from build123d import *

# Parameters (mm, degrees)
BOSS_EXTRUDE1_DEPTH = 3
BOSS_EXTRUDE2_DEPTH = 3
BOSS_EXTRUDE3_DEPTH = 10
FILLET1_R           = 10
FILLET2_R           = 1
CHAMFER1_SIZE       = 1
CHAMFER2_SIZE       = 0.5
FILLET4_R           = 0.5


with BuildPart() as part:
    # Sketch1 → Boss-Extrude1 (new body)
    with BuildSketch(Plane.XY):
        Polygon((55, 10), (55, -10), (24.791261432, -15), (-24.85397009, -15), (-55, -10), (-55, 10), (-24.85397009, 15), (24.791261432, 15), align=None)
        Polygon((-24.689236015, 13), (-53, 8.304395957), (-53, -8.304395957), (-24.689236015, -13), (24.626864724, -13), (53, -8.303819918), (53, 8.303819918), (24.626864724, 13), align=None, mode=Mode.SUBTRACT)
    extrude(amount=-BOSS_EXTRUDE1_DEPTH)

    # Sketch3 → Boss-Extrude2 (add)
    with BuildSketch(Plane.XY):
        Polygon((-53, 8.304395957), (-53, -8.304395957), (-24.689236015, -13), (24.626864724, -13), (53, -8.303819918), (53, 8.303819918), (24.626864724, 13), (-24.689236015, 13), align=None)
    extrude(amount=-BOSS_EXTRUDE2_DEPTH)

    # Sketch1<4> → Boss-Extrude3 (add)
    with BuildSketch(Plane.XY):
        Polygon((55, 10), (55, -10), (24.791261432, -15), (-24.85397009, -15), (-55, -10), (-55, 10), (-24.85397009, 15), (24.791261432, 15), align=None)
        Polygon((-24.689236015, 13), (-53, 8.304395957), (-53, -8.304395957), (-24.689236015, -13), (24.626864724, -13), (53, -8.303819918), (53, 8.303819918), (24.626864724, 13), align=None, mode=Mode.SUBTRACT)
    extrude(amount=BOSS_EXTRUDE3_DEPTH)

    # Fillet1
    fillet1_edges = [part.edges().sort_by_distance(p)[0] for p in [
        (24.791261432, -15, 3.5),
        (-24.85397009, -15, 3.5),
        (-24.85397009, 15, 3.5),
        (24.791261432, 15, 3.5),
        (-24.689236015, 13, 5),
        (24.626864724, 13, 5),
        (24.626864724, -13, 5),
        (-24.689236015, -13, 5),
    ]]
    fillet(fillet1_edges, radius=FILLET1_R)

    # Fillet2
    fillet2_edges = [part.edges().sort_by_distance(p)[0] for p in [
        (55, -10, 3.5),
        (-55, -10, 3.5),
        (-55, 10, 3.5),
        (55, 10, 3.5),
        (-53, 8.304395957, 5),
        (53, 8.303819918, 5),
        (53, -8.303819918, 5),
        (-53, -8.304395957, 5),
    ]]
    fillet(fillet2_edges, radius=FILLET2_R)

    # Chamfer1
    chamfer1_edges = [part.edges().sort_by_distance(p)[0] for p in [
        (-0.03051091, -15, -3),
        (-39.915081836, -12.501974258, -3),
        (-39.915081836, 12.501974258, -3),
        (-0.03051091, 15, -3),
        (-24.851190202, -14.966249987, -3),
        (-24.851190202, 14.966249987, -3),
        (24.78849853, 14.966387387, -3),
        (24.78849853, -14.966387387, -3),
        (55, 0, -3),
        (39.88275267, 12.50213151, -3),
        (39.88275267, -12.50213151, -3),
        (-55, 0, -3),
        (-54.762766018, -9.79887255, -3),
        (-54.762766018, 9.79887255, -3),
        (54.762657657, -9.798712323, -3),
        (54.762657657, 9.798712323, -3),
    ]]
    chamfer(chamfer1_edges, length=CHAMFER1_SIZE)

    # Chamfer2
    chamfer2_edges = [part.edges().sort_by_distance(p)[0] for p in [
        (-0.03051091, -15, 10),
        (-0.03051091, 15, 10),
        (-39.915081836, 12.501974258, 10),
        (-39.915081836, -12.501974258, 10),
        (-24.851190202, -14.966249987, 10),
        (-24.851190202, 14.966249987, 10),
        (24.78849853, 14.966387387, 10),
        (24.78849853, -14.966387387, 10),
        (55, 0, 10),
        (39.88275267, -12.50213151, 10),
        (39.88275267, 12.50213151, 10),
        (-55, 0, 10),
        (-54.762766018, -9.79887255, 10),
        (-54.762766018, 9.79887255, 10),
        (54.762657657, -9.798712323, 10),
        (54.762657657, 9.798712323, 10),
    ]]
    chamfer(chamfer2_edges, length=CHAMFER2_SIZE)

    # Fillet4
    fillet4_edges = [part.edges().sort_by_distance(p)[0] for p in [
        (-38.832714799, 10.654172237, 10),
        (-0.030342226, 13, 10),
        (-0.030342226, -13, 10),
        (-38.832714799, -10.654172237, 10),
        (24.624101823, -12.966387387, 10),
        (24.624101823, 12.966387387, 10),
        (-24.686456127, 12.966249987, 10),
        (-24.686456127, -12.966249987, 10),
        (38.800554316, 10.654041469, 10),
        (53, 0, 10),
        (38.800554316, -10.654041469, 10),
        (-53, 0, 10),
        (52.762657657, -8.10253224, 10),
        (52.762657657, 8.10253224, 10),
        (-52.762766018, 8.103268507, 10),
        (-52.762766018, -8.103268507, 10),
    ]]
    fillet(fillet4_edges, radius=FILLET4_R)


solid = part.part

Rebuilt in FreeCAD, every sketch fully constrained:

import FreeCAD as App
import Part
import Sketcher

V = App.Vector
Q = App.Units.Quantity


def edges_at(feature, points):
    """Names of the edges that pass closest to the given points."""
    edges = feature.Shape.Edges
    near = lambda p: min(range(len(edges)), key=lambda i: edges[i].distToShape(Part.Vertex(*p))[0])
    return sorted({f"Edge{near(p) + 1}" for p in points})

doc = App.newDocument("Part")
body = doc.addObject("PartDesign::Body", "Body")

sketch1 = body.newObject("Sketcher::SketchObject", "Sketch")
sketch1.AttachmentSupport = (doc.getObject("XY_Plane"), [""])
sketch1.MapMode = "FlatFace"
sketch1.addGeometry(Part.LineSegment(V(55, -10, 0), V(55, 10, 0)), False)
sketch1.addGeometry(Part.LineSegment(V(55, 10, 0), V(24.791261, 15, 0)), False)
sketch1.addGeometry(Part.LineSegment(V(24.791261, 15, 0), V(-24.85397, 15, 0)), False)
sketch1.addGeometry(Part.LineSegment(V(-24.85397, 15, 0), V(-55, 10, 0)), False)
sketch1.addGeometry(Part.LineSegment(V(-55, 10, 0), V(-55, -10, 0)), False)
sketch1.addGeometry(Part.LineSegment(V(-55, -10, 0), V(-24.85397, -15, 0)), False)
sketch1.addGeometry(Part.LineSegment(V(-24.85397, -15, 0), V(24.791261, -15, 0)), False)
sketch1.addGeometry(Part.LineSegment(V(24.791261, -15, 0), V(55, -10, 0)), False)
sketch1.addGeometry(Part.LineSegment(V(-24.689236, 13, 0), V(24.626865, 13, 0)), False)
sketch1.addGeometry(Part.LineSegment(V(24.626865, 13, 0), V(53, 8.30382, 0)), False)
sketch1.addGeometry(Part.LineSegment(V(53, 8.30382, 0), V(53, -8.30382, 0)), False)
sketch1.addGeometry(Part.LineSegment(V(53, -8.30382, 0), V(24.626865, -13, 0)), False)
sketch1.addGeometry(Part.LineSegment(V(24.626865, -13, 0), V(-24.689236, -13, 0)), False)
sketch1.addGeometry(Part.LineSegment(V(-24.689236, -13, 0), V(-53, -8.304396, 0)), False)
sketch1.addGeometry(Part.LineSegment(V(-53, -8.304396, 0), V(-53, 8.304396, 0)), False)
sketch1.addGeometry(Part.LineSegment(V(-53, 8.304396, 0), V(-24.689236, 13, 0)), False)
sketch1.addConstraint(Sketcher.Constraint("Coincident", 0, 2, 1, 1))
sketch1.addConstraint(Sketcher.Constraint("Coincident", 1, 2, 2, 1))
sketch1.addConstraint(Sketcher.Constraint("Coincident", 2, 2, 3, 1))
sketch1.addConstraint(Sketcher.Constraint("Coincident", 3, 2, 4, 1))
sketch1.addConstraint(Sketcher.Constraint("Coincident", 4, 2, 5, 1))
sketch1.addConstraint(Sketcher.Constraint("Coincident", 5, 2, 6, 1))
sketch1.addConstraint(Sketcher.Constraint("Coincident", 6, 2, 7, 1))
sketch1.addConstraint(Sketcher.Constraint("Coincident", 7, 2, 0, 1))
sketch1.addConstraint(Sketcher.Constraint("Coincident", 8, 2, 9, 1))
sketch1.addConstraint(Sketcher.Constraint("Coincident", 9, 2, 10, 1))
sketch1.addConstraint(Sketcher.Constraint("Coincident", 10, 2, 11, 1))
sketch1.addConstraint(Sketcher.Constraint("Coincident", 11, 2, 12, 1))
sketch1.addConstraint(Sketcher.Constraint("Coincident", 12, 2, 13, 1))
sketch1.addConstraint(Sketcher.Constraint("Coincident", 13, 2, 14, 1))
sketch1.addConstraint(Sketcher.Constraint("Coincident", 14, 2, 15, 1))
sketch1.addConstraint(Sketcher.Constraint("Coincident", 15, 2, 8, 1))
sketch1.addConstraint(Sketcher.Constraint("Vertical", 0))
sketch1.addConstraint(Sketcher.Constraint("Horizontal", 2))
sketch1.addConstraint(Sketcher.Constraint("Vertical", 4))
sketch1.addConstraint(Sketcher.Constraint("Horizontal", 6))
sketch1.addConstraint(Sketcher.Constraint("Horizontal", 8))
sketch1.addConstraint(Sketcher.Constraint("Vertical", 10))
sketch1.addConstraint(Sketcher.Constraint("Horizontal", 12))
sketch1.addConstraint(Sketcher.Constraint("Vertical", 14))
sketch1.addConstraint(Sketcher.Constraint("Symmetric", 0, 2, 4, 2, -1, 1))
sketch1.addConstraint(Sketcher.Constraint("Symmetric", 2, 2, 5, 2, -1))
sketch1.addConstraint(Sketcher.Constraint("Symmetric", 8, 2, 11, 2, -1))
sketch1.addConstraint(Sketcher.Constraint("Parallel", 1, 9))
sketch1.addConstraint(Sketcher.Constraint("Parallel", 7, 11))
sketch1.addConstraint(Sketcher.Constraint("Parallel", 5, 13))
sketch1.addConstraint(Sketcher.Constraint("Parallel", 3, 15))
sketch1.addConstraint(Sketcher.Constraint("Horizontal", 0, 2, 3, 2))
sketch1.addConstraint(Sketcher.Constraint("Horizontal", 4, 2, 7, 2))
sketch1.addConstraint(Sketcher.Constraint("Vertical", 1, 2, 6, 2))
sketch1.addConstraint(Sketcher.Constraint("Vertical", 12, 2, 15, 2))
sketch1.addConstraint(Sketcher.Constraint("DistanceY", 0, 1, 0, 2, Q("20 mm")))
sketch1.addConstraint(Sketcher.Constraint("DistanceX", -1, 1, 0, 2, Q("55 mm")))
sketch1.addConstraint(Sketcher.Constraint("DistanceY", -1, 1, 1, 2, Q("15 mm")))
sketch1.addConstraint(Sketcher.Constraint("DistanceY", -1, 1, 8, 2, Q("13 mm")))
sketch1.addConstraint(Sketcher.Constraint("DistanceX", -1, 1, 9, 2, Q("53 mm")))
sketch1.addConstraint(Sketcher.Constraint("DistanceX", 13, 2, -1, 1, Q("53 mm")))
sketch1.addConstraint(Sketcher.Constraint("DistanceX", 8, 1, 8, 2, Q("49.316101 mm")))
sketch1.addConstraint(Sketcher.Constraint("DistanceX", 2, 2, 2, 1, Q("49.645232 mm")))
sketch1.addConstraint(Sketcher.Constraint("DistanceY", 10, 2, 10, 1, Q("16.60764 mm")))
sketch1.addConstraint(Sketcher.Constraint("Distance", 1, Q("30.61973 mm")))
pad1 = body.newObject("PartDesign::Pad", "Pad")
pad1.Profile = sketch1
pad1.Length = 3
pad1.Reversed = True

sketch2 = body.newObject("Sketcher::SketchObject", "Sketch001")
sketch2.AttachmentSupport = (doc.getObject("XY_Plane"), [""])
sketch2.MapMode = "FlatFace"
sketch2.addGeometry(Part.LineSegment(V(-53, 8.304396, 0), V(-53, -8.304396, 0)), False)
sketch2.addGeometry(Part.LineSegment(V(-53, -8.304396, 0), V(-24.689236, -13, 0)), False)
sketch2.addGeometry(Part.LineSegment(V(-24.689236, -13, 0), V(24.626865, -13, 0)), False)
sketch2.addGeometry(Part.LineSegment(V(24.626865, -13, 0), V(53, -8.30382, 0)), False)
sketch2.addGeometry(Part.LineSegment(V(53, -8.30382, 0), V(53, 8.30382, 0)), False)
sketch2.addGeometry(Part.LineSegment(V(53, 8.30382, 0), V(24.626865, 13, 0)), False)
sketch2.addGeometry(Part.LineSegment(V(24.626865, 13, 0), V(-24.689236, 13, 0)), False)
sketch2.addGeometry(Part.LineSegment(V(-24.689236, 13, 0), V(-53, 8.304396, 0)), False)
sketch2.addConstraint(Sketcher.Constraint("Coincident", 0, 2, 1, 1))
sketch2.addConstraint(Sketcher.Constraint("Coincident", 1, 2, 2, 1))
sketch2.addConstraint(Sketcher.Constraint("Coincident", 2, 2, 3, 1))
sketch2.addConstraint(Sketcher.Constraint("Coincident", 3, 2, 4, 1))
sketch2.addConstraint(Sketcher.Constraint("Coincident", 4, 2, 5, 1))
sketch2.addConstraint(Sketcher.Constraint("Coincident", 5, 2, 6, 1))
sketch2.addConstraint(Sketcher.Constraint("Coincident", 6, 2, 7, 1))
sketch2.addConstraint(Sketcher.Constraint("Coincident", 7, 2, 0, 1))
sketch2.addConstraint(Sketcher.Constraint("Vertical", 0))
sketch2.addConstraint(Sketcher.Constraint("Horizontal", 2))
sketch2.addConstraint(Sketcher.Constraint("Vertical", 4))
sketch2.addConstraint(Sketcher.Constraint("Horizontal", 6))
sketch2.addConstraint(Sketcher.Constraint("Symmetric", 2, 2, 5, 2, -1))
sketch2.addConstraint(Sketcher.Constraint("Vertical", 1, 2, 6, 2))
sketch2.addConstraint(Sketcher.Constraint("Equal", 3, 5))
sketch2.addConstraint(Sketcher.Constraint("Equal", 1, 7))
sketch2.addConstraint(Sketcher.Constraint("DistanceX", 0, 2, -1, 1, Q("53 mm")))
sketch2.addConstraint(Sketcher.Constraint("DistanceY", 1, 2, -1, 1, Q("13 mm")))
sketch2.addConstraint(Sketcher.Constraint("DistanceX", -1, 1, 3, 2, Q("53 mm")))
sketch2.addConstraint(Sketcher.Constraint("DistanceX", 2, 1, 2, 2, Q("49.316101 mm")))
sketch2.addConstraint(Sketcher.Constraint("DistanceY", 0, 2, 0, 1, Q("16.608792 mm")))
sketch2.addConstraint(Sketcher.Constraint("DistanceY", 4, 1, 4, 2, Q("16.60764 mm")))
sketch2.addConstraint(Sketcher.Constraint("Distance", 1, Q("28.697527 mm")))
pad2 = body.newObject("PartDesign::Pad", "Pad001")
pad2.Profile = sketch2
pad2.Length = 3
pad2.Reversed = True

sketch3 = body.newObject("Sketcher::SketchObject", "Sketch002")
sketch3.AttachmentSupport = (doc.getObject("XY_Plane"), [""])
sketch3.MapMode = "FlatFace"
sketch3.addGeometry(Part.LineSegment(V(55, -10, 0), V(55, 10, 0)), False)
sketch3.addGeometry(Part.LineSegment(V(55, 10, 0), V(24.791261, 15, 0)), False)
sketch3.addGeometry(Part.LineSegment(V(24.791261, 15, 0), V(-24.85397, 15, 0)), False)
sketch3.addGeometry(Part.LineSegment(V(-24.85397, 15, 0), V(-55, 10, 0)), False)
sketch3.addGeometry(Part.LineSegment(V(-55, 10, 0), V(-55, -10, 0)), False)
sketch3.addGeometry(Part.LineSegment(V(-55, -10, 0), V(-24.85397, -15, 0)), False)
sketch3.addGeometry(Part.LineSegment(V(-24.85397, -15, 0), V(24.791261, -15, 0)), False)
sketch3.addGeometry(Part.LineSegment(V(24.791261, -15, 0), V(55, -10, 0)), False)
sketch3.addGeometry(Part.LineSegment(V(-24.689236, 13, 0), V(24.626865, 13, 0)), False)
sketch3.addGeometry(Part.LineSegment(V(24.626865, 13, 0), V(53, 8.30382, 0)), False)
sketch3.addGeometry(Part.LineSegment(V(53, 8.30382, 0), V(53, -8.30382, 0)), False)
sketch3.addGeometry(Part.LineSegment(V(53, -8.30382, 0), V(24.626865, -13, 0)), False)
sketch3.addGeometry(Part.LineSegment(V(24.626865, -13, 0), V(-24.689236, -13, 0)), False)
sketch3.addGeometry(Part.LineSegment(V(-24.689236, -13, 0), V(-53, -8.304396, 0)), False)
sketch3.addGeometry(Part.LineSegment(V(-53, -8.304396, 0), V(-53, 8.304396, 0)), False)
sketch3.addGeometry(Part.LineSegment(V(-53, 8.304396, 0), V(-24.689236, 13, 0)), False)
sketch3.addConstraint(Sketcher.Constraint("Coincident", 0, 2, 1, 1))
sketch3.addConstraint(Sketcher.Constraint("Coincident", 1, 2, 2, 1))
sketch3.addConstraint(Sketcher.Constraint("Coincident", 2, 2, 3, 1))
sketch3.addConstraint(Sketcher.Constraint("Coincident", 3, 2, 4, 1))
sketch3.addConstraint(Sketcher.Constraint("Coincident", 4, 2, 5, 1))
sketch3.addConstraint(Sketcher.Constraint("Coincident", 5, 2, 6, 1))
sketch3.addConstraint(Sketcher.Constraint("Coincident", 6, 2, 7, 1))
sketch3.addConstraint(Sketcher.Constraint("Coincident", 7, 2, 0, 1))
sketch3.addConstraint(Sketcher.Constraint("Coincident", 8, 2, 9, 1))
sketch3.addConstraint(Sketcher.Constraint("Coincident", 9, 2, 10, 1))
sketch3.addConstraint(Sketcher.Constraint("Coincident", 10, 2, 11, 1))
sketch3.addConstraint(Sketcher.Constraint("Coincident", 11, 2, 12, 1))
sketch3.addConstraint(Sketcher.Constraint("Coincident", 12, 2, 13, 1))
sketch3.addConstraint(Sketcher.Constraint("Coincident", 13, 2, 14, 1))
sketch3.addConstraint(Sketcher.Constraint("Coincident", 14, 2, 15, 1))
sketch3.addConstraint(Sketcher.Constraint("Coincident", 15, 2, 8, 1))
sketch3.addConstraint(Sketcher.Constraint("Vertical", 0))
sketch3.addConstraint(Sketcher.Constraint("Horizontal", 2))
sketch3.addConstraint(Sketcher.Constraint("Vertical", 4))
sketch3.addConstraint(Sketcher.Constraint("Horizontal", 6))
sketch3.addConstraint(Sketcher.Constraint("Horizontal", 8))
sketch3.addConstraint(Sketcher.Constraint("Vertical", 10))
sketch3.addConstraint(Sketcher.Constraint("Horizontal", 12))
sketch3.addConstraint(Sketcher.Constraint("Vertical", 14))
sketch3.addConstraint(Sketcher.Constraint("Symmetric", 0, 2, 4, 2, -1, 1))
sketch3.addConstraint(Sketcher.Constraint("Symmetric", 2, 2, 5, 2, -1))
sketch3.addConstraint(Sketcher.Constraint("Symmetric", 8, 2, 11, 2, -1))
sketch3.addConstraint(Sketcher.Constraint("Parallel", 1, 9))
sketch3.addConstraint(Sketcher.Constraint("Parallel", 7, 11))
sketch3.addConstraint(Sketcher.Constraint("Parallel", 5, 13))
sketch3.addConstraint(Sketcher.Constraint("Parallel", 3, 15))
sketch3.addConstraint(Sketcher.Constraint("Horizontal", 0, 2, 3, 2))
sketch3.addConstraint(Sketcher.Constraint("Horizontal", 4, 2, 7, 2))
sketch3.addConstraint(Sketcher.Constraint("Vertical", 1, 2, 6, 2))
sketch3.addConstraint(Sketcher.Constraint("Vertical", 12, 2, 15, 2))
sketch3.addConstraint(Sketcher.Constraint("DistanceY", 0, 1, 0, 2, Q("20 mm")))
sketch3.addConstraint(Sketcher.Constraint("DistanceX", -1, 1, 0, 2, Q("55 mm")))
sketch3.addConstraint(Sketcher.Constraint("DistanceY", -1, 1, 1, 2, Q("15 mm")))
sketch3.addConstraint(Sketcher.Constraint("DistanceY", -1, 1, 8, 2, Q("13 mm")))
sketch3.addConstraint(Sketcher.Constraint("DistanceX", -1, 1, 9, 2, Q("53 mm")))
sketch3.addConstraint(Sketcher.Constraint("DistanceX", 13, 2, -1, 1, Q("53 mm")))
sketch3.addConstraint(Sketcher.Constraint("DistanceX", 8, 1, 8, 2, Q("49.316101 mm")))
sketch3.addConstraint(Sketcher.Constraint("DistanceX", 2, 2, 2, 1, Q("49.645232 mm")))
sketch3.addConstraint(Sketcher.Constraint("DistanceY", 10, 2, 10, 1, Q("16.60764 mm")))
sketch3.addConstraint(Sketcher.Constraint("Distance", 1, Q("30.61973 mm")))
pad3 = body.newObject("PartDesign::Pad", "Pad002")
pad3.Profile = sketch3
pad3.Length = 10
doc.recompute()

fillet = body.newObject("PartDesign::Fillet", "Fillet")
fillet.Base = (pad3, edges_at(pad3, [
    (24.791, -15, 3.5),
    (-24.854, -15, 3.5),
    (-24.854, 15, 3.5),
    (24.791, 15, 3.5),
    (-24.689, 13, 5),
    (24.627, 13, 5),
    (24.627, -13, 5),
    (-24.689, -13, 5),
]))
fillet.Radius = 10
doc.recompute()

fillet2 = body.newObject("PartDesign::Fillet", "Fillet001")
fillet2.Base = (fillet, edges_at(fillet, [
    (55, -10, 3.5),
    (-55, -10, 3.5),
    (-55, 10, 3.5),
    (55, 10, 3.5),
    (-53, 8.304, 5),
    (53, 8.304, 5),
    (53, -8.304, 5),
    (-53, -8.304, 5),
]))
fillet2.Radius = 1
doc.recompute()

chamfer = body.newObject("PartDesign::Chamfer", "Chamfer")
chamfer.Base = (fillet2, edges_at(fillet2, [
    (-0.031, -15, -3),
    (-39.915, -12.502, -3),
    (-39.915, 12.502, -3),
    (-0.031, 15, -3),
    (-24.851, -14.966, -3),
    (-24.851, 14.966, -3),
    (24.788, 14.966, -3),
    (24.788, -14.966, -3),
    (55, 0, -3),
    (39.883, 12.502, -3),
    (39.883, -12.502, -3),
    (-55, 0, -3),
    (-54.763, -9.799, -3),
    (-54.763, 9.799, -3),
    (54.763, -9.799, -3),
    (54.763, 9.799, -3),
]))
chamfer.Size = 1
doc.recompute()

chamfer2 = body.newObject("PartDesign::Chamfer", "Chamfer001")
chamfer2.Base = (chamfer, edges_at(chamfer, [
    (-0.031, -15, 10),
    (-0.031, 15, 10),
    (-39.915, 12.502, 10),
    (-39.915, -12.502, 10),
    (-24.851, -14.966, 10),
    (-24.851, 14.966, 10),
    (24.788, 14.966, 10),
    (24.788, -14.966, 10),
    (55, 0, 10),
    (39.883, -12.502, 10),
    (39.883, 12.502, 10),
    (-55, 0, 10),
    (-54.763, -9.799, 10),
    (-54.763, 9.799, 10),
    (54.763, -9.799, 10),
    (54.763, 9.799, 10),
]))
chamfer2.Size = 0.5
doc.recompute()

fillet3 = body.newObject("PartDesign::Fillet", "Fillet002")
fillet3.Base = (chamfer2, edges_at(chamfer2, [
    (-38.833, 10.654, 10),
    (-0.03, 13, 10),
    (-0.03, -13, 10),
    (-38.833, -10.654, 10),
    (24.624, -12.966, 10),
    (24.624, 12.966, 10),
    (-24.686, 12.966, 10),
    (-24.686, -12.966, 10),
    (38.801, 10.654, 10),
    (53, 0, 10),
    (38.801, -10.654, 10),
    (-53, 0, 10),
    (52.763, -8.103, 10),
    (52.763, 8.103, 10),
    (-52.763, 8.103, 10),
    (-52.763, -8.103, 10),
]))
fillet3.Radius = 0.5

doc.recompute()
